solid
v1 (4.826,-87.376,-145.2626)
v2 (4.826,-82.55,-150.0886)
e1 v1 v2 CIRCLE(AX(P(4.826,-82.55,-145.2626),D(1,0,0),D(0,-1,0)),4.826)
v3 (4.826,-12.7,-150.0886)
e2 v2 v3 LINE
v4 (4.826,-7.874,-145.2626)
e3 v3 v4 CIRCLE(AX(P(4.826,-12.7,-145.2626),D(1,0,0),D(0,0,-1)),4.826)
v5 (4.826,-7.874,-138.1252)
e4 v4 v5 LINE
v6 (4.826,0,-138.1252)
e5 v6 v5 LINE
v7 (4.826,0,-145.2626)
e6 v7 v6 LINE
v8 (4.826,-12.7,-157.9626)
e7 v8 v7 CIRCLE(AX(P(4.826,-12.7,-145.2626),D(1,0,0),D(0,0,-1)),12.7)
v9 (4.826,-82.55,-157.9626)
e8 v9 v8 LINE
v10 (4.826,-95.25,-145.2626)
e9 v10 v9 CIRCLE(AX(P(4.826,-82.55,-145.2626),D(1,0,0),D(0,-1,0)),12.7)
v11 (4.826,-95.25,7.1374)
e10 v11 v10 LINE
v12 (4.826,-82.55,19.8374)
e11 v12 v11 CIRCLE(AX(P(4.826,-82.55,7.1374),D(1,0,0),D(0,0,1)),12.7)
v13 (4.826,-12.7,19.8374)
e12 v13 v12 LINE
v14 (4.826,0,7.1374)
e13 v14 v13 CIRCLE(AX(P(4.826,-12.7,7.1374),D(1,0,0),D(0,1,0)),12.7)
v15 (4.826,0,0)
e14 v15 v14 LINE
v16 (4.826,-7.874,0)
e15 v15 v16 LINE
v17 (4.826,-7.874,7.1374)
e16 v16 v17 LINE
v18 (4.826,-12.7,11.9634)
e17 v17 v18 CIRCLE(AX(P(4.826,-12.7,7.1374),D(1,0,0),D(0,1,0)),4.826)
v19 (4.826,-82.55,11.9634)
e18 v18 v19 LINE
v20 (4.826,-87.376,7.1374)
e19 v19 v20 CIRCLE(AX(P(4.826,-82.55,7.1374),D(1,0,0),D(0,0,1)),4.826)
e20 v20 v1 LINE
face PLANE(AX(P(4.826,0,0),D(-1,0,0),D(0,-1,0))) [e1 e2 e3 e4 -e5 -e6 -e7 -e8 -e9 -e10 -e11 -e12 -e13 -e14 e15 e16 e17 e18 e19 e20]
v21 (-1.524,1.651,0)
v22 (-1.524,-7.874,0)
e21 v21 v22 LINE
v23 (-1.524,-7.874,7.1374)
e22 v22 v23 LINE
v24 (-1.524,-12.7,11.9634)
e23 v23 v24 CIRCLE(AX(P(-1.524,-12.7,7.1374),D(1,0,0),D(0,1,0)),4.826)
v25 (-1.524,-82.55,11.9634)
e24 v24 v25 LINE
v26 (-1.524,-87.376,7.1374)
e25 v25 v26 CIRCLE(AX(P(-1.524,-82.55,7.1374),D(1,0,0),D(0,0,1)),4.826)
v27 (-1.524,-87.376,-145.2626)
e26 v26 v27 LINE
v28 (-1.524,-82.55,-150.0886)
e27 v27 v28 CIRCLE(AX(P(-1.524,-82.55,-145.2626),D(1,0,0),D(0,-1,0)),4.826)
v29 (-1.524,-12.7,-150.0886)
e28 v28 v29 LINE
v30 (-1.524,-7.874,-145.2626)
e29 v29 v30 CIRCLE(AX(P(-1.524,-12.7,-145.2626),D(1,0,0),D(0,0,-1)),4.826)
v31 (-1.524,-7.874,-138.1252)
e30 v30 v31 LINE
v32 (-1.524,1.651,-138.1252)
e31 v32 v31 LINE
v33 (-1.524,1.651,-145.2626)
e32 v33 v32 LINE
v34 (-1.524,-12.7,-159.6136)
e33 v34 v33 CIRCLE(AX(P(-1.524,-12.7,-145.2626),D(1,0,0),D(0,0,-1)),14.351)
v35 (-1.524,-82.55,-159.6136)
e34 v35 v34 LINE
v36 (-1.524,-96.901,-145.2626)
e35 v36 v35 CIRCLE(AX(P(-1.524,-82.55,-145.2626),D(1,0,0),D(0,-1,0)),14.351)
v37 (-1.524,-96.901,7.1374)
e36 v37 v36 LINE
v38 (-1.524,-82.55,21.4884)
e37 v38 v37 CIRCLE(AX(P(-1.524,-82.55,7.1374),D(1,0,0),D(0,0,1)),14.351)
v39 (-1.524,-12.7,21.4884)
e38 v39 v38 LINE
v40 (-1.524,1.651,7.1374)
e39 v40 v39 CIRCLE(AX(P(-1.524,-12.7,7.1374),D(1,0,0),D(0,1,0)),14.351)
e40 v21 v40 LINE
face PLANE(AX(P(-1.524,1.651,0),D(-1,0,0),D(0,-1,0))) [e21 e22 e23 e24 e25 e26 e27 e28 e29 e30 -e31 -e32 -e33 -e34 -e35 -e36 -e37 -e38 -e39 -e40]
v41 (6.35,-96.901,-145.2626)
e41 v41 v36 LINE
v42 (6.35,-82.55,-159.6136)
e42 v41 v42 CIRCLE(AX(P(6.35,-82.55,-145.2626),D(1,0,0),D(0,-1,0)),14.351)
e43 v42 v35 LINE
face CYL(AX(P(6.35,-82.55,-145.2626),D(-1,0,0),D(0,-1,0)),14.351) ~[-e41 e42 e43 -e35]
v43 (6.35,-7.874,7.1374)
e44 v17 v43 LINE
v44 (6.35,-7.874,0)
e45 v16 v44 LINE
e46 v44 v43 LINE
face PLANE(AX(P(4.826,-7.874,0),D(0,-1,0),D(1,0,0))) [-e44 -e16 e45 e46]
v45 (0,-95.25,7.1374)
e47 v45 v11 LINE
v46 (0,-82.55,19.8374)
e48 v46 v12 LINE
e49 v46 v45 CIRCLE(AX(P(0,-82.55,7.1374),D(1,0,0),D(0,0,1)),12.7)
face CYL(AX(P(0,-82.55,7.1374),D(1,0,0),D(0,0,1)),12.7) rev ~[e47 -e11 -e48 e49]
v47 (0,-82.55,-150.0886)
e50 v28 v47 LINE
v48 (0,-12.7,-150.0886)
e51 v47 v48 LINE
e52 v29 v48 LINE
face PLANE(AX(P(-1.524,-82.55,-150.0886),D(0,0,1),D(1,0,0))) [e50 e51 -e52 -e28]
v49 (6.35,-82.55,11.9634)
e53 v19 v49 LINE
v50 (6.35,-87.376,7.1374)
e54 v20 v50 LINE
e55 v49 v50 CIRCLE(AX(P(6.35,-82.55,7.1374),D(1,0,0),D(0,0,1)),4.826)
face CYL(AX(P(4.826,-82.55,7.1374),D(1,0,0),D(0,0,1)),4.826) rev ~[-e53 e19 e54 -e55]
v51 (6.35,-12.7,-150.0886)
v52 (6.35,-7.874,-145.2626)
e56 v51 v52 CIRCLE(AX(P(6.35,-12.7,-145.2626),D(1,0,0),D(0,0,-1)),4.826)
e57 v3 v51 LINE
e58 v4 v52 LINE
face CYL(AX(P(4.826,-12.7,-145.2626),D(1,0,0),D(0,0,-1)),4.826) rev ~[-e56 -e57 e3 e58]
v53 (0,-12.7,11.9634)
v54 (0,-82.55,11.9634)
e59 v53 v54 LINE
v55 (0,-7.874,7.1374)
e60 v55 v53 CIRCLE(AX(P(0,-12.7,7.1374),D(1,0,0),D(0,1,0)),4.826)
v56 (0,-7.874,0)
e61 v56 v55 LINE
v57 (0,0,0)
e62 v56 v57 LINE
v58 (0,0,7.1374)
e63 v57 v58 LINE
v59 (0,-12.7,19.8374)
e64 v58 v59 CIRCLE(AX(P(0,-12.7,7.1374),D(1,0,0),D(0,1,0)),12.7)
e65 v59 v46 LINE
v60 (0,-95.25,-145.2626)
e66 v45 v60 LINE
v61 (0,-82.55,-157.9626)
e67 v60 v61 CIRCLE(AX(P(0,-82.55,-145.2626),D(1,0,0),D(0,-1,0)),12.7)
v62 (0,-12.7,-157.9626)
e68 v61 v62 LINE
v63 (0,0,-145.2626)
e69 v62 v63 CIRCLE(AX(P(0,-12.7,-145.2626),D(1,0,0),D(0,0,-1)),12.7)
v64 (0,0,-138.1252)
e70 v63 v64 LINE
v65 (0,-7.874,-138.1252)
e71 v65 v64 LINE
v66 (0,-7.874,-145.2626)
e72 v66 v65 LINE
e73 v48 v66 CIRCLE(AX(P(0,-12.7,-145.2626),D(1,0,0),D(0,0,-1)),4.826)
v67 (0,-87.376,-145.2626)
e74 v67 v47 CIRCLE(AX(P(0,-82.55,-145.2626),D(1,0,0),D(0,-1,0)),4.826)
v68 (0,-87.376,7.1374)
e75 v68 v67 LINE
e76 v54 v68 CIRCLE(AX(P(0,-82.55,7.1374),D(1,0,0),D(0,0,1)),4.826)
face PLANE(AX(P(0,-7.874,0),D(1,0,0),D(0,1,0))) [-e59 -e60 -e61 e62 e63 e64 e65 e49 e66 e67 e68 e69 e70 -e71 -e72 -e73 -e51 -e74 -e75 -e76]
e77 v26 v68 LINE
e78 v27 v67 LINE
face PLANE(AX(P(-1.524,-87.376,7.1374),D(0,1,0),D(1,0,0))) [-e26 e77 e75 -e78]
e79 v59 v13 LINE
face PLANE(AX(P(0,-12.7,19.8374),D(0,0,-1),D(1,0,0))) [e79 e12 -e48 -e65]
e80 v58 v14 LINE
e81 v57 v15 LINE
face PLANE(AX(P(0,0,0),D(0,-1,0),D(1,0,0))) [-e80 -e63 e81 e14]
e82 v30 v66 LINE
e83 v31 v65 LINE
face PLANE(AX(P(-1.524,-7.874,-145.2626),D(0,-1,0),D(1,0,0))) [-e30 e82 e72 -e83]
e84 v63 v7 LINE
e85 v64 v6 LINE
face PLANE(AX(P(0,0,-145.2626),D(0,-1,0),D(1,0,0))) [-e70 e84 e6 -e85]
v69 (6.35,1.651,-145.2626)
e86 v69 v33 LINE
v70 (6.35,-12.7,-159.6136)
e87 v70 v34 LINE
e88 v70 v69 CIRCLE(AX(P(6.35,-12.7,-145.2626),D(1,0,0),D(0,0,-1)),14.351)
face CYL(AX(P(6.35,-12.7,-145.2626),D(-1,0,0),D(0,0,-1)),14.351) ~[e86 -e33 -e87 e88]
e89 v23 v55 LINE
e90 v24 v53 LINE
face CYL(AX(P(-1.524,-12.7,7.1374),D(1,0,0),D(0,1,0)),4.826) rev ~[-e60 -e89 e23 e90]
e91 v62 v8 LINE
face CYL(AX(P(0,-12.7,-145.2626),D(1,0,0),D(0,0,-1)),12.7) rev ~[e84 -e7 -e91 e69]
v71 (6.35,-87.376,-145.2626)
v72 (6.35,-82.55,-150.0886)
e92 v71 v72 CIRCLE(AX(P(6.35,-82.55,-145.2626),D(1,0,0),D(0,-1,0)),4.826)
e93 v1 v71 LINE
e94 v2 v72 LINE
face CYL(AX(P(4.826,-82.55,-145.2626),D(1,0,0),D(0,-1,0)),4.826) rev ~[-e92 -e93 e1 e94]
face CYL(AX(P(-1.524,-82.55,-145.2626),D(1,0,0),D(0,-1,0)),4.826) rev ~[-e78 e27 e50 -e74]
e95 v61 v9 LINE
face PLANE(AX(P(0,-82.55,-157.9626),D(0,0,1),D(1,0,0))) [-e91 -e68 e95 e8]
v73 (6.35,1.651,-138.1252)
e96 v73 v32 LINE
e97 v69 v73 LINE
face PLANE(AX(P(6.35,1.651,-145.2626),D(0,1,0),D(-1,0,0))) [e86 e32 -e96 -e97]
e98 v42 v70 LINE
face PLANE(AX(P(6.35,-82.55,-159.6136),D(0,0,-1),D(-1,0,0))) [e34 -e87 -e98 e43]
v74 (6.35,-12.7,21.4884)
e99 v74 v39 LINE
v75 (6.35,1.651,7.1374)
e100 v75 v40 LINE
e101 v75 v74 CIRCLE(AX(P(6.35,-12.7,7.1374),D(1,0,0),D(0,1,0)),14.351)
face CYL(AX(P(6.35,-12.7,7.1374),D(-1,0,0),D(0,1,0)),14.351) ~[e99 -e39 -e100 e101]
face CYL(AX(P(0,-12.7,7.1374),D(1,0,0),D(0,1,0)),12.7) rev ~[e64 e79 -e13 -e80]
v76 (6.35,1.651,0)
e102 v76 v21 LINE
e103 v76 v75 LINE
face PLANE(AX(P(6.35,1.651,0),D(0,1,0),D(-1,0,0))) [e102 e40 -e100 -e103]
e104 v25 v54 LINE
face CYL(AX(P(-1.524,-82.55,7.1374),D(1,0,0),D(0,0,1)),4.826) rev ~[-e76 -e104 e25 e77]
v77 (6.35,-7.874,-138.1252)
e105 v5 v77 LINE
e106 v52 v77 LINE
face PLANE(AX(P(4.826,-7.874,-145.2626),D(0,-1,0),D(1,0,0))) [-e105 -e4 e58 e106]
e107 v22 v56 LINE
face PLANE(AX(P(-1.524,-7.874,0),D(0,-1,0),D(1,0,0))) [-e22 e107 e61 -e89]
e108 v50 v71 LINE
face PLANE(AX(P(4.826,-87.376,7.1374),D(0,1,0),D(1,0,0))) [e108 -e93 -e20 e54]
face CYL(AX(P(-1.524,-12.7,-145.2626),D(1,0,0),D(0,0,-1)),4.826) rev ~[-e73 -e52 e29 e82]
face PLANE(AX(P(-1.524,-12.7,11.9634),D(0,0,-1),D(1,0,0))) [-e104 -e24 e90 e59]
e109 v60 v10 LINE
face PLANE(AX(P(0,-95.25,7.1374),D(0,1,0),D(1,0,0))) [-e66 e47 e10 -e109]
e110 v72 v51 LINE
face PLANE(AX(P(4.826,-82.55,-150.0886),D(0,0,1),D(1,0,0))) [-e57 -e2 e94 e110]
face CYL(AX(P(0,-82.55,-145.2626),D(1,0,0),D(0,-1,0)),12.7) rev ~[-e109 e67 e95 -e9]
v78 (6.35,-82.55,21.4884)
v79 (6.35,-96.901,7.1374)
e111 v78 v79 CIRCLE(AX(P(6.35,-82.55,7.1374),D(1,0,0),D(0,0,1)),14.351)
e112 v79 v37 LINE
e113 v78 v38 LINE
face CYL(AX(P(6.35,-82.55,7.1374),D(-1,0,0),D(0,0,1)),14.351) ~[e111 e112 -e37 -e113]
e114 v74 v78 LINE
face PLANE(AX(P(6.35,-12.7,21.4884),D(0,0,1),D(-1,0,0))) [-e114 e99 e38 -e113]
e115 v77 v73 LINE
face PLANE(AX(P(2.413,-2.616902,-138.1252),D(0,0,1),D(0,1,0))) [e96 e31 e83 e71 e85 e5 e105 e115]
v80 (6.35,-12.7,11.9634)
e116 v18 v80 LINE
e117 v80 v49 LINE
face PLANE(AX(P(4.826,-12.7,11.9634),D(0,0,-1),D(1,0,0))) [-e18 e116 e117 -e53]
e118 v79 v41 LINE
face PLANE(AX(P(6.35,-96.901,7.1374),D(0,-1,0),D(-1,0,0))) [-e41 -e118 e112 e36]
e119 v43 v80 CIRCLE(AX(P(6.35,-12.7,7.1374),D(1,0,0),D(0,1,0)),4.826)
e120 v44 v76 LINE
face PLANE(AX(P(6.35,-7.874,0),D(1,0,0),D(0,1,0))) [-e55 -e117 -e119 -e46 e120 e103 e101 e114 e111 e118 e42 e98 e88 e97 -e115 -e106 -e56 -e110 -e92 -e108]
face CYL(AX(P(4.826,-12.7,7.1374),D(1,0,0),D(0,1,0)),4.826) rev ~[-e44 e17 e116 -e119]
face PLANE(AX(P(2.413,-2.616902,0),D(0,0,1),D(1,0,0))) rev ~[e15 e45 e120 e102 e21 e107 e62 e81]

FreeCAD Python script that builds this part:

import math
import FreeCAD as App
import Part
import Sketcher

V = App.Vector
Q = App.Units.Quantity

doc = App.newDocument("Part")
body = doc.addObject("PartDesign::Body", "Body")

# Sketch on XY plane
sketch1 = doc.addObject("Sketcher::SketchObject", "Sketch")
body.addObject(sketch1)
sketch1.AttachmentSupport = (doc.XY_Plane, [""])
sketch1.MapMode = "FlatFace"
sketch1.addGeometry([
    Part.LineSegment(V(0, 0, 0), V(4.8, 0, 0)),  # 0
    Part.LineSegment(V(4.8, 0, 0), V(4.8, -7.9, 0)),  # 1
    Part.LineSegment(V(4.8, -7.9, 0), V(6.3, -7.9, 0)),  # 2
    Part.LineSegment(V(6.3, -7.9, 0), V(6.3, 1.7, 0)),  # 3
    Part.LineSegment(V(6.3, 1.7, 0), V(-1.5, 1.7, 0)),  # 4
    Part.LineSegment(V(-1.5, 1.7, 0), V(-1.5, -7.9, 0)),  # 5
    Part.LineSegment(V(-1.5, -7.9, 0), V(0, -7.9, 0)),  # 6
    Part.LineSegment(V(0, -7.9, 0), V(0, 0, 0)),  # 7
], False)
sketch1.addConstraint([
    Sketcher.Constraint("Coincident", 0, 2, 1, 1),
    Sketcher.Constraint("Coincident", 1, 2, 2, 1),
    Sketcher.Constraint("Coincident", 2, 2, 3, 1),
    Sketcher.Constraint("Coincident", 3, 2, 4, 1),
    Sketcher.Constraint("Coincident", 4, 2, 5, 1),
    Sketcher.Constraint("Coincident", 5, 2, 6, 1),
    Sketcher.Constraint("Coincident", 6, 2, 7, 1),
    Sketcher.Constraint("Coincident", 7, 2, 0, 1),
    Sketcher.Constraint("Horizontal", 0),
    Sketcher.Constraint("Vertical", 1),
    Sketcher.Constraint("Horizontal", 2),
    Sketcher.Constraint("Vertical", 3),
    Sketcher.Constraint("Horizontal", 4),
    Sketcher.Constraint("Vertical", 5),
    Sketcher.Constraint("Horizontal", 6),
    Sketcher.Constraint("Vertical", 7),
    Sketcher.Constraint("Coincident", 7, 2, -1, 1),
    Sketcher.Constraint("Horizontal", 2, 2, 5, 2),
    Sketcher.Constraint("Equal", 2, 6),
    Sketcher.Constraint("Equal", 4, 1),
    Sketcher.Constraint("DistanceX", 0, 1, 0, 2, Q("0.19 in")),
    Sketcher.Constraint("DistanceX", 2, 1, 2, 2, Q("0.06 in")),
    Sketcher.Constraint("DistanceY", 3, 1, 3, 2, Q("0.375 in")),
])

# Sketch on YZ plane
sketch2 = doc.addObject("Sketcher::SketchObject", "Sketch001")
body.addObject(sketch2)
sketch2.AttachmentSupport = (doc.YZ_Plane, [""])
sketch2.MapMode = "FlatFace"
sketch2.addGeometry([
    Part.LineSegment(V(0, 0, 0), V(0, 7, 0)),  # 0
    Part.ArcOfCircle(Part.Circle(V(-13, 7, 0), V(0, 0, 1), 13), math.radians(0), math.radians(90)),  # 1
    Part.LineSegment(V(-13, 20, 0), V(-83, 20, 0)),  # 2
    Part.ArcOfCircle(Part.Circle(V(-83, 7, 0), V(0, 0, 1), 13), math.radians(90), math.radians(180)),  # 3
    Part.LineSegment(V(-95, 7, 0), V(-95, -145, 0)),  # 4
    Part.ArcOfCircle(Part.Circle(V(-83, -145, 0), V(0, 0, 1), 13), math.radians(180), math.radians(270)),  # 5
    Part.LineSegment(V(-83, -158, 0), V(-13, -158, 0)),  # 6
    Part.ArcOfCircle(Part.Circle(V(-13, -145, 0), V(0, 0, 1), 13), math.radians(-90), math.radians(0)),  # 7
    Part.LineSegment(V(0, -145, 0), V(0, -138, 0)),  # 8
], False)
sketch2.addConstraint([
    Sketcher.Constraint("Tangent", 0, 2, 1, 1),
    Sketcher.Constraint("Tangent", 1, 2, 2, 1),
    Sketcher.Constraint("Tangent", 2, 2, 3, 1),
    Sketcher.Constraint("Tangent", 3, 2, 4, 1),
    Sketcher.Constraint("Tangent", 4, 2, 5, 1),
    Sketcher.Constraint("Tangent", 5, 2, 6, 1),
    Sketcher.Constraint("Tangent", 6, 2, 7, 1),
    Sketcher.Constraint("Tangent", 7, 2, 8, 1),
    Sketcher.Constraint("Vertical", 0),
    Sketcher.Constraint("Horizontal", 2),
    Sketcher.Constraint("Vertical", 4),
    Sketcher.Constraint("Horizontal", 6),
    Sketcher.Constraint("Vertical", 8),
    Sketcher.Constraint("Coincident", 0, 1, -1, 1),
    Sketcher.Constraint("Equal", 1, 3),
    Sketcher.Constraint("Equal", 3, 5),
    Sketcher.Constraint("Equal", 5, 7),
    Sketcher.Constraint("PointOnObject", 7, 2, -2),
    Sketcher.Constraint("Equal", 0, 8),
    Sketcher.Constraint("Radius", 1, Q("0.5 in")),
    Sketcher.Constraint("DistanceY", 4, 2, 4, 1, Q("6 in")),
    Sketcher.Constraint("DistanceX", 2, 2, 2, 1, Q("2.75 in")),
    Sketcher.Constraint("DistanceY", 0, 1, 0, 2, Q("0.281 in")),
])
doc.recompute()

additivepipe = doc.addObject("PartDesign::AdditivePipe", "AdditivePipe")
body.addObject(additivepipe)
additivepipe.Profile = sketch1
additivepipe.Spine = (sketch2, ["Edge1", "Edge2", "Edge3", "Edge4", "Edge5", "Edge6", "Edge7", "Edge8", "Edge9"])

doc.recompute()
